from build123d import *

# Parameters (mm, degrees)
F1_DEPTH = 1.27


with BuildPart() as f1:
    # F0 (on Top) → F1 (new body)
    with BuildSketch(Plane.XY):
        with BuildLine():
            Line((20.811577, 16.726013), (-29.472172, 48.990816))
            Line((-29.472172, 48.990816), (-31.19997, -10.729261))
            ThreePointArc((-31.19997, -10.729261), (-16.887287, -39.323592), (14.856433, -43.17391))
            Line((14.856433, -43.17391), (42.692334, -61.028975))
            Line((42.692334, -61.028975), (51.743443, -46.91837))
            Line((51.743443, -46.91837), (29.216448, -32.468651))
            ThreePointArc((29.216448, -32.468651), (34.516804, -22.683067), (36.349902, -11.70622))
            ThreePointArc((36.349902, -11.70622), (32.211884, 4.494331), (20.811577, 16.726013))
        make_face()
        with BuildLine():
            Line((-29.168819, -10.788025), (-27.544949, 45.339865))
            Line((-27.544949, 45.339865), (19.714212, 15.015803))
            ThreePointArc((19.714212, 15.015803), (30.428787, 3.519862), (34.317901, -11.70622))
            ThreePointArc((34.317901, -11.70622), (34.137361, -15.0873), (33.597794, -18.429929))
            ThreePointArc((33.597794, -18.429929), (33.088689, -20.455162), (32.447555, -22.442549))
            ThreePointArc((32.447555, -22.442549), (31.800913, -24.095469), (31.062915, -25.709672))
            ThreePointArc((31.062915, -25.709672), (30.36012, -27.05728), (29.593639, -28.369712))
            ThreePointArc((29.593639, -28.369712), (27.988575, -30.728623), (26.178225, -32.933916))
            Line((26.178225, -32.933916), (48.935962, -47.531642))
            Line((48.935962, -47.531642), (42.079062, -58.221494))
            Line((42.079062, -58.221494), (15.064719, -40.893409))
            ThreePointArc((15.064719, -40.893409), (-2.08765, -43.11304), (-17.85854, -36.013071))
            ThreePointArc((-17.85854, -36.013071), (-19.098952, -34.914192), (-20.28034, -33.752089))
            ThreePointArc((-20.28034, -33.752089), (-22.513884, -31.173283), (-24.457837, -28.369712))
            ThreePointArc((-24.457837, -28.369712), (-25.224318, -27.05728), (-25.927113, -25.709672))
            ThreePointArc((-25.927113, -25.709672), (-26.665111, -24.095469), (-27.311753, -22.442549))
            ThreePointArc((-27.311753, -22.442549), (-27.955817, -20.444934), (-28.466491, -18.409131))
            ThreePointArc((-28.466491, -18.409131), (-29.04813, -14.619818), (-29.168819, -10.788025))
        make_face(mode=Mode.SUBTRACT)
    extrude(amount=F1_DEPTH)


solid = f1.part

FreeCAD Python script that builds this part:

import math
import FreeCAD as App
import Part
import Sketcher
Q = App.Units.Quantity

doc = App.newDocument("Part")
body = doc.addObject("PartDesign::Body", "Body")

# Sketch on XY plane
sketch1 = body.newObject("Sketcher::SketchObject", "Sketch")
sketch1.AttachmentSupport = (doc.getObject("XY_Plane"), [""])
sketch1.MapMode = "FlatFace"
sketch1.addGeometry(Part.LineSegment(App.Vector(20.811577, 16.726013, 0), App.Vector(-29.472172, 48.990816, 0)), False)
sketch1.addGeometry(Part.LineSegment(App.Vector(-29.472172, 48.990816, 0), App.Vector(-31.19997, -10.729261, 0)), False)
sketch1.addGeometry(Part.ArcOfCircle(Part.Circle(App.Vector(2.5679, -11.706221, 0), App.Vector(0, 0, 1), 33.782), math.radians(178.342802), math.radians(291.331277)), False)
sketch1.addGeometry(Part.LineSegment(App.Vector(14.856433, -43.17391, 0), App.Vector(42.692334, -61.028975, 0)), False)
sketch1.addGeometry(Part.LineSegment(App.Vector(42.692334, -61.028975, 0), App.Vector(51.743443, -46.91837, 0)), False)
sketch1.addGeometry(Part.LineSegment(App.Vector(51.743443, -46.91837, 0), App.Vector(29.216448, -32.468651, 0)), False)
sketch1.addGeometry(Part.ArcOfCircle(Part.Circle(App.Vector(2.567895, -11.706218, 0), App.Vector(0, 0, 1), 33.782007), math.radians(-37.922886), math.radians(-0.000003)), False)
sketch1.addGeometry(Part.ArcOfCircle(Part.Circle(App.Vector(2.5679, -11.706221, 0), App.Vector(0, 0, 1), 33.782002), math.radians(0.000001), math.radians(57.313548)), False)
sketch1.addGeometry(Part.ArcOfCircle(Part.Circle(App.Vector(2.567946, -11.706217, 0), App.Vector(0, 0, 1), 31.750045), math.radians(178.342809), math.radians(192.187707)), False)
sketch1.addGeometry(Part.LineSegment(App.Vector(-29.168819, -10.788025, 0), App.Vector(-27.544949, 45.339865, 0)), False)
sketch1.addGeometry(Part.LineSegment(App.Vector(-27.544949, 45.339865, 0), App.Vector(19.714212, 15.015803, 0)), False)
sketch1.addGeometry(Part.ArcOfCircle(Part.Circle(App.Vector(2.567906, -11.706217, 0), App.Vector(0, 0, 1), 31.749995), math.radians(-0.000005), math.radians(57.313555)), False)
sketch1.addGeometry(Part.ArcOfCircle(Part.Circle(App.Vector(2.567888, -11.70622, 0), App.Vector(0, 0, 1), 31.750013), math.radians(-12.226115), math.radians(0.000001)), False)
sketch1.addGeometry(Part.ArcOfCircle(Part.Circle(App.Vector(2.567786, -11.706182, 0), App.Vector(0, 0, 1), 31.750121), math.radians(-19.764324), math.radians(-12.226143)), False)
sketch1.addGeometry(Part.ArcOfCircle(Part.Circle(App.Vector(2.567847, -11.706198, 0), App.Vector(0, 0, 1), 31.750058), math.radians(-26.171117), math.radians(-19.764334)), False)
sketch1.addGeometry(Part.ArcOfCircle(Part.Circle(App.Vector(2.567837, -11.706183, 0), App.Vector(0, 0, 1), 31.750073), math.radians(-31.657093), math.radians(-26.171134)), False)
sketch1.addGeometry(Part.ArcOfCircle(Part.Circle(App.Vector(2.567914, -11.706229, 0), App.Vector(0, 0, 1), 31.749984), math.radians(-41.958248), math.radians(-31.657094)), False)
sketch1.addGeometry(Part.LineSegment(App.Vector(26.178225, -32.933916, 0), App.Vector(48.935962, -47.531642, 0)), False)
sketch1.addGeometry(Part.LineSegment(App.Vector(48.935962, -47.531642, 0), App.Vector(42.079062, -58.221494, 0)), False)
sketch1.addGeometry(Part.LineSegment(App.Vector(42.079062, -58.221494, 0), App.Vector(15.064719, -40.893409, 0)), False)
sketch1.addGeometry(Part.ArcOfCircle(Part.Circle(App.Vector(2.5679, -11.706222, 0), App.Vector(0, 0, 1), 31.749998), math.radians(-130.042263), math.radians(-66.821273)), False)
sketch1.addGeometry(Part.ArcOfCircle(Part.Circle(App.Vector(2.567857, -11.706276, 0), App.Vector(0, 0, 1), 31.749928), math.radians(-136.02393), math.radians(-130.042266)), False)
sketch1.addGeometry(Part.ArcOfCircle(Part.Circle(App.Vector(2.567874, -11.706239, 0), App.Vector(0, 0, 1), 31.749966), math.radians(-148.342908), math.radians(-136.023903)), False)
sketch1.addGeometry(Part.ArcOfCircle(Part.Circle(App.Vector(2.567965, -11.706183, 0), App.Vector(0, 0, 1), 31.750073), math.radians(-153.828866), math.radians(-148.342907)), False)
sketch1.addGeometry(Part.ArcOfCircle(Part.Circle(App.Vector(2.567955, -11.706198, 0), App.Vector(0, 0, 1), 31.750058), math.radians(-160.235666), math.radians(-153.828883)), False)
sketch1.addGeometry(Part.ArcOfCircle(Part.Circle(App.Vector(2.567971, -11.706198, 0), App.Vector(0, 0, 1), 31.750073), math.radians(-167.812267), math.radians(-160.235675)), False)
sketch1.addConstraint(Sketcher.Constraint("Coincident", 0, 2, 1, 1))
sketch1.addConstraint(Sketcher.Constraint("Coincident", 1, 2, 2, 1))
sketch1.addConstraint(Sketcher.Constraint("Coincident", 2, 2, 3, 1))
sketch1.addConstraint(Sketcher.Constraint("Coincident", 3, 2, 4, 1))
sketch1.addConstraint(Sketcher.Constraint("Coincident", 4, 2, 5, 1))
sketch1.addConstraint(Sketcher.Constraint("Coincident", 5, 2, 6, 1))
sketch1.addConstraint(Sketcher.Constraint("Coincident", 6, 2, 7, 1))
sketch1.addConstraint(Sketcher.Constraint("Coincident", 7, 2, 0, 1))
sketch1.addConstraint(Sketcher.Constraint("Coincident", 8, 1, 9, 1))
sketch1.addConstraint(Sketcher.Constraint("Coincident", 9, 2, 10, 1))
sketch1.addConstraint(Sketcher.Constraint("Coincident", 10, 2, 11, 2))
sketch1.addConstraint(Sketcher.Constraint("Coincident", 11, 1, 12, 2))
sketch1.addConstraint(Sketcher.Constraint("Coincident", 12, 1, 13, 2))
sketch1.addConstraint(Sketcher.Constraint("Coincident", 13, 1, 14, 2))
sketch1.addConstraint(Sketcher.Constraint("Coincident", 14, 1, 15, 2))
sketch1.addConstraint(Sketcher.Constraint("Coincident", 15, 1, 16, 2))
sketch1.addConstraint(Sketcher.Constraint("Coincident", 16, 1, 17, 1))
sketch1.addConstraint(Sketcher.Constraint("Coincident", 17, 2, 18, 1))
sketch1.addConstraint(Sketcher.Constraint("Coincident", 18, 2, 19, 1))
sketch1.addConstraint(Sketcher.Constraint("Coincident", 19, 2, 20, 2))
sketch1.addConstraint(Sketcher.Constraint("Coincident", 20, 1, 21, 2))
sketch1.addConstraint(Sketcher.Constraint("Coincident", 21, 1, 22, 2))
sketch1.addConstraint(Sketcher.Constraint("Coincident", 22, 1, 23, 2))
sketch1.addConstraint(Sketcher.Constraint("Coincident", 23, 1, 24, 2))
sketch1.addConstraint(Sketcher.Constraint("Coincident", 24, 1, 25, 2))
sketch1.addConstraint(Sketcher.Constraint("Coincident", 25, 1, 8, 2))
sketch1.addConstraint(Sketcher.Constraint("Coincident", 6, 3, 2, 3))
sketch1.addConstraint(Sketcher.Constraint("Coincident", 7, 3, 2, 3))
sketch1.addConstraint(Sketcher.Constraint("Coincident", 11, 3, 2, 3))
sketch1.addConstraint(Sketcher.Constraint("Coincident", 12, 3, 6, 3))
sketch1.addConstraint(Sketcher.Constraint("Coincident", 20, 3, 2, 3))
sketch1.addConstraint(Sketcher.Constraint("Radius", 2, Q("1.33 in")))
sketch1.addConstraint(Sketcher.Constraint("Radius", 7, Q("1.3300001 in")))
sketch1.addConstraint(Sketcher.Constraint("Radius", 20, Q("1.2499999 in")))
sketch1.addConstraint(Sketcher.Constraint("Distance", 18, Q("0.5 in")))
sketch1.addConstraint(Sketcher.Constraint("Distance", 4, Q("0.6600001 in")))
sketch1.addConstraint(Sketcher.Constraint("DistanceX", 11, 1, 6, 2, Q("0.08 in")))
sketch1.addConstraint(Sketcher.Constraint("Radius", 13, Q("31.750121 mm")))
sketch1.addConstraint(Sketcher.Constraint("Radius", 14, Q("31.750058 mm")))
sketch1.addConstraint(Sketcher.Constraint("Radius", 21, Q("31.749928 mm")))
sketch1.addConstraint(Sketcher.Constraint("Radius", 24, Q("31.750058 mm")))
sketch1.addConstraint(Sketcher.Constraint("Radius", 8, Q("31.750045 mm")))
sketch1.addConstraint(Sketcher.Constraint("Radius", 15, Q("31.750073 mm")))
sketch1.addConstraint(Sketcher.Constraint("Radius", 16, Q("31.749984 mm")))
sketch1.addConstraint(Sketcher.Constraint("Radius", 22, Q("31.749966 mm")))
sketch1.addConstraint(Sketcher.Constraint("Radius", 23, Q("31.750073 mm")))
sketch1.addConstraint(Sketcher.Constraint("Radius", 25, Q("31.750073 mm")))
sketch1.addConstraint(Sketcher.Constraint("DistanceX", 16, 3, 2, 2, Q("0.4838 in")))
sketch1.addConstraint(Sketcher.Constraint("DistanceX", 24, 3, 3, 2, Q("1.5797 in")))
sketch1.addConstraint(Sketcher.Constraint("DistanceX", -1, 1, 2, 3, Q("2.5679 mm")))
sketch1.addConstraint(Sketcher.Constraint("DistanceY", 14, 3, -1, 1, Q("11.706198 mm")))
sketch1.addConstraint(Sketcher.Constraint("DistanceY", 24, 3, -1, 1, Q("11.706198 mm")))
sketch1.addConstraint(Sketcher.Constraint("DistanceY", 13, 3, 0, 2, Q("60.696998 mm")))
sketch1.addConstraint(Sketcher.Constraint("DistanceY", 15, 3, 0, 2, Q("60.696999 mm")))
sketch1.addConstraint(Sketcher.Constraint("DistanceX", 2, 2, 3, 2, Q("27.835901 mm")))
sketch1.addConstraint(Sketcher.Constraint("DistanceY", 3, 2, 21, 3, Q("49.322699 mm")))
sketch1.addConstraint(Sketcher.Constraint("DistanceX", 8, 3, 5, 2, Q("26.648502 mm")))
sketch1.addConstraint(Sketcher.Constraint("DistanceY", 25, 3, 10, 2, Q("26.722001 mm")))
sketch1.addConstraint(Sketcher.Constraint("DistanceY", 24, 3, 10, 2, Q("26.722001 mm")))
sketch1.addConstraint(Sketcher.Constraint("DistanceX", 18, 2, 17, 2, Q("6.8569 mm")))
sketch1.addConstraint(Sketcher.Constraint("DistanceY", 2, 2, 19, 2, Q("2.280501 mm")))
sketch1.addConstraint(Sketcher.Constraint("DistanceX", 21, 1, 20, 1, Q("2.4218 mm")))
sketch1.addConstraint(Sketcher.Constraint("DistanceY", 20, 1, 23, 1, Q("10.303399 mm")))
sketch1.addConstraint(Sketcher.Constraint("Distance", 3, Q("33.070239 mm")))
sketch1.addConstraint(Sketcher.Constraint("DistanceY", 2, 3, -1, 1, Q("11.706221 mm")))
sketch1.addConstraint(Sketcher.Constraint("DistanceY", 16, 3, -1, 1, Q("11.706229 mm")))
sketch1.addConstraint(Sketcher.Constraint("DistanceY", 22, 3, -1, 1, Q("11.706239 mm")))
sketch1.addConstraint(Sketcher.Constraint("DistanceX", -1, 1, 25, 3, Q("2.567971 mm")))
sketch1.addConstraint(Sketcher.Constraint("DistanceX", 1, 2, -1, 1, Q("31.19997 mm")))
sketch1.addConstraint(Sketcher.Constraint("DistanceY", 4, 2, -1, 1, Q("46.91837 mm")))
sketch1.addConstraint(Sketcher.Constraint("DistanceX", -1, 1, 5, 2, Q("29.216448 mm")))
sketch1.addConstraint(Sketcher.Constraint("DistanceY", 6, 2, -1, 1, Q("11.70622 mm")))
sketch1.addConstraint(Sketcher.Constraint("DistanceX", 8, 1, -1, 1, Q("29.168819 mm")))
sketch1.addConstraint(Sketcher.Constraint("DistanceX", 9, 2, -1, 1, Q("27.544949 mm")))
sketch1.addConstraint(Sketcher.Constraint("DistanceY", 11, 1, -1, 1, Q("11.70622 mm")))
sketch1.addConstraint(Sketcher.Constraint("DistanceY", 12, 1, -1, 1, Q("18.429929 mm")))
sketch1.addConstraint(Sketcher.Constraint("DistanceY", 13, 1, -1, 1, Q("22.442549 mm")))
sketch1.addConstraint(Sketcher.Constraint("DistanceX", -1, 1, 15, 1, Q("29.593639 mm")))
sketch1.addConstraint(Sketcher.Constraint("DistanceY", 17, 2, -1, 1, Q("47.531642 mm")))
sketch1.addConstraint(Sketcher.Constraint("DistanceX", 20, 1, -1, 1, Q("17.85854 mm")))
sketch1.addConstraint(Sketcher.Constraint("DistanceY", 24, 1, -1, 1, Q("22.442549 mm")))
sketch1.addConstraint(Sketcher.Constraint("DistanceX", 25, 1, -1, 1, Q("28.466491 mm")))
sketch1.addConstraint(Sketcher.Constraint("DistanceX", 0, 2, 15, 3, Q("32.040009 mm")))
sketch1.addConstraint(Sketcher.Constraint("DistanceY", 25, 3, 7, 2, Q("28.432211 mm")))
sketch1.addConstraint(Sketcher.Constraint("DistanceY", 9, 2, 0, 2, Q("3.650951 mm")))
sketch1.addConstraint(Sketcher.Constraint("DistanceX", 14, 1, 13, 1, Q("1.38464 mm")))
sketch1.addConstraint(Sketcher.Constraint("DistanceX", 16, 1, 14, 1, Q("4.88469 mm")))
sketch1.addConstraint(Sketcher.Constraint("DistanceX", 17, 2, 4, 2, Q("2.807481 mm")))
sketch1.addConstraint(Sketcher.Constraint("DistanceY", 20, 1, 22, 1, Q("7.643359 mm")))
pad1 = body.newObject("PartDesign::Pad", "Pad")
pad1.Profile = sketch1
pad1.Length = Q("0.05 in")

doc.recompute()
